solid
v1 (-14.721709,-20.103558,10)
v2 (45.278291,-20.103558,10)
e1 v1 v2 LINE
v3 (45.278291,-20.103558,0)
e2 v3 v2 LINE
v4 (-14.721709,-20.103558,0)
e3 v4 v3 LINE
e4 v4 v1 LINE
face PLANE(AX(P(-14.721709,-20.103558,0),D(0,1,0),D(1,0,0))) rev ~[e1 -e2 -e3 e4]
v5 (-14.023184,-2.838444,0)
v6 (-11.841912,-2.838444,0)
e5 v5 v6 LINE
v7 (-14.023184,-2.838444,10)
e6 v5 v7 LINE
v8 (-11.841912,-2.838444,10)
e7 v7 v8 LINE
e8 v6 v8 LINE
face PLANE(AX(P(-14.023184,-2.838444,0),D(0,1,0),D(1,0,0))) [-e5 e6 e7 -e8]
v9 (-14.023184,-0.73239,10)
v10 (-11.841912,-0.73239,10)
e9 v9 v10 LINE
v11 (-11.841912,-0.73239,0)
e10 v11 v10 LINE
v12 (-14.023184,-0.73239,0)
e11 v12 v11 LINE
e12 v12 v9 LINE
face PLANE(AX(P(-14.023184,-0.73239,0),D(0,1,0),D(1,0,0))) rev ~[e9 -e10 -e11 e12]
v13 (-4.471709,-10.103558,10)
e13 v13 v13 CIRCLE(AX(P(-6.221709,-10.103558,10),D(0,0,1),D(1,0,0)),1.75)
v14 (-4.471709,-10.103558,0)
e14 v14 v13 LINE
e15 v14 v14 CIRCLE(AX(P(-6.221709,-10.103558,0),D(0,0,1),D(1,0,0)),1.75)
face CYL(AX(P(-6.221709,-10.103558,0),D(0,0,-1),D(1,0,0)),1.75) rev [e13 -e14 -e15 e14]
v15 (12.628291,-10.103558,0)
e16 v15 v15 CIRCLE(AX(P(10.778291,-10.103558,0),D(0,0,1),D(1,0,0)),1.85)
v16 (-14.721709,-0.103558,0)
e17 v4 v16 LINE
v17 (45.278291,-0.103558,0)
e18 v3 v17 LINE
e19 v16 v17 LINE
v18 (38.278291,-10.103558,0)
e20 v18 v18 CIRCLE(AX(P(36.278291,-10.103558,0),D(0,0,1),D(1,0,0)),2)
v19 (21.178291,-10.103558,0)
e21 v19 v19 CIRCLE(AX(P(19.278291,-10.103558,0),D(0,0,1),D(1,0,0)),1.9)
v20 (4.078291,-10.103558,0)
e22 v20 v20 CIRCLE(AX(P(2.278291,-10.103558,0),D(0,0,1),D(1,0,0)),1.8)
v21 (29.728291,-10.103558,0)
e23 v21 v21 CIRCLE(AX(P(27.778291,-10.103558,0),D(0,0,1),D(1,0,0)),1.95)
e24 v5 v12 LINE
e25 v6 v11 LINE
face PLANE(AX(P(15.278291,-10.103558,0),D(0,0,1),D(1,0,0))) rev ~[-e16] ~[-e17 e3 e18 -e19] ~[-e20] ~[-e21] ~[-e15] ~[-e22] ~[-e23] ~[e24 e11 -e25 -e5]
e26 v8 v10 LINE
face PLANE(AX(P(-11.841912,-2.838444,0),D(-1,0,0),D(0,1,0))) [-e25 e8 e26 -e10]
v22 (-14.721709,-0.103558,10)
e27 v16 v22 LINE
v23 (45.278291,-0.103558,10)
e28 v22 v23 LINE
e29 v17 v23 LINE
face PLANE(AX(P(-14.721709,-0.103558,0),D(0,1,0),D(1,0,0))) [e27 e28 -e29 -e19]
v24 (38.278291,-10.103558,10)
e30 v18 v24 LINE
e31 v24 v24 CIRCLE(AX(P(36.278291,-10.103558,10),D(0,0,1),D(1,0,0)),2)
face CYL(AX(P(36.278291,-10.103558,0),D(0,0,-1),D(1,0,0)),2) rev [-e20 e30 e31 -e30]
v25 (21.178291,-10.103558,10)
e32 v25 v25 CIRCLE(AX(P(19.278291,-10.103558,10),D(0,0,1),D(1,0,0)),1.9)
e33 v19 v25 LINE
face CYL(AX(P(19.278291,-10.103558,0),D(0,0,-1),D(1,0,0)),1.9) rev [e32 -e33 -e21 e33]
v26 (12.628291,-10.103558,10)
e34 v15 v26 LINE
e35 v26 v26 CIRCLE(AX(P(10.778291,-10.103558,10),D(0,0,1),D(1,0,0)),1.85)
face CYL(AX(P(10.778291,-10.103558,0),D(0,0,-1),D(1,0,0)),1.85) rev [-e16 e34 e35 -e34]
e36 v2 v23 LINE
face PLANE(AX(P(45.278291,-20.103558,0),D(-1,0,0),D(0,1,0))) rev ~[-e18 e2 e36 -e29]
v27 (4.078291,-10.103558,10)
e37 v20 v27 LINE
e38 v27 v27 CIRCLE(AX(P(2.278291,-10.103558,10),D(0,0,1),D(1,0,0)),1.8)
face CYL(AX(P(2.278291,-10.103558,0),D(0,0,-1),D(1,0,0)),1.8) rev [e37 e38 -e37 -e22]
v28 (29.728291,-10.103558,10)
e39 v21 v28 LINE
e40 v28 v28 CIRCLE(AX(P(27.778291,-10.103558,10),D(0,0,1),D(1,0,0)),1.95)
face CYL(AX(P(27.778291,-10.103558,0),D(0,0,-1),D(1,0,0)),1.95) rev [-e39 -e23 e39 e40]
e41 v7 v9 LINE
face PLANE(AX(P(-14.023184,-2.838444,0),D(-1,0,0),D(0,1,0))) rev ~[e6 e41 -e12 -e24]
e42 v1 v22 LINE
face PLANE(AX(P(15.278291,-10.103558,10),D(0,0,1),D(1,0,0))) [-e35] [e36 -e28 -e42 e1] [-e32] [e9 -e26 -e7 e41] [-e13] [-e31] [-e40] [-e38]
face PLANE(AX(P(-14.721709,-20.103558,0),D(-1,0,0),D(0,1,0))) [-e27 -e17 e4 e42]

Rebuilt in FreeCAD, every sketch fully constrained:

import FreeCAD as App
import Part
import Sketcher
from FreeCAD import Vector
Q = App.Units.Quantity


def add_polygon(sketch, points):
    """Adds a closed chain of lines whose ends are joined by coincident constraints."""
    first, n = sketch.GeometryCount, len(points)
    for a, b in zip(points, points[1:] + points[:1]):
        sketch.addGeometry(Part.LineSegment(App.Vector(*a, 0), App.Vector(*b, 0)), False)
    for i in range(n):
        sketch.addConstraint(Sketcher.Constraint("Coincident", first + i, 2, first + (i + 1) % n, 1))

doc = App.newDocument("Part")
params = doc.addObject("Spreadsheet::Sheet", "Params")
for row, (alias, value) in enumerate([
    ("sketch1_diameter", "4 mm"),
    ("sketch1_diameter2", "3.5 mm"),
    ("sketch1_diameter3", "3.6 mm"),
    ("sketch1_diameter4", "3.7 mm"),
    ("sketch1_diameter5", "3.8 mm"),
    ("pad1_length", "10 mm"),
], start=1):
    params.set(f"A{row}", alias)
    params.set(f"B{row}", "=" + value)
    params.setAlias(f"B{row}", alias)

body = doc.addObject("PartDesign::Body", "Body")

sketch1 = body.newObject("Sketcher::SketchObject", "Sketch")
sketch1.AttachmentSupport = (doc.getObject("XY_Plane"), [""])
sketch1.MapMode = "FlatFace"
add_polygon(sketch1, [(-14.721709, -0.103558), (-14.721709, -20.103558), (45.278291, -20.103558), (45.278291, -0.103558)])
sketch1.addGeometry(Part.Circle(Vector(-6.221709, -10.103558, 0), Vector(0, 0, 1), 1.75), False)
sketch1.addGeometry(Part.Circle(Vector(2.278291, -10.103558, 0), Vector(0, 0, 1), 1.8), False)
sketch1.addGeometry(Part.Circle(Vector(10.778291, -10.103558, 0), Vector(0, 0, 1), 1.85), False)
sketch1.addGeometry(Part.Circle(Vector(19.278291, -10.103558, 0), Vector(0, 0, 1), 1.9), False)
sketch1.addGeometry(Part.Circle(Vector(27.778291, -10.103558, 0), Vector(0, 0, 1), 1.95), False)
sketch1.addGeometry(Part.Circle(Vector(36.278291, -10.103558, 0), Vector(0, 0, 1), 2), False)
add_polygon(sketch1, [(-11.841912, -2.838444), (-14.023184, -2.838444), (-14.023184, -0.73239), (-11.841912, -0.73239)])
sketch1.addConstraint([
    Sketcher.Constraint("Vertical", 0),
    Sketcher.Constraint("Horizontal", 1),
    Sketcher.Constraint("Vertical", 2),
    Sketcher.Constraint("Horizontal", 3),
    Sketcher.Constraint("Horizontal", 10),
    Sketcher.Constraint("Vertical", 11),
    Sketcher.Constraint("Horizontal", 12),
    Sketcher.Constraint("Vertical", 13),
    Sketcher.Constraint("Horizontal", 4, 3, 5, 3),
    Sketcher.Constraint("Horizontal", 5, 3, 6, 3),
    Sketcher.Constraint("Horizontal", 6, 3, 7, 3),
    Sketcher.Constraint("Horizontal", 7, 3, 8, 3),
    Sketcher.Constraint("Horizontal", 8, 3, 9, 3),
    Sketcher.Constraint("Diameter", 9, Q("4 mm")),
    Sketcher.Constraint("Diameter", 4, Q("3.5 mm")),
    Sketcher.Constraint("Diameter", 5, Q("3.6 mm")),
    Sketcher.Constraint("Diameter", 6, Q("3.7 mm")),
    Sketcher.Constraint("Diameter", 7, Q("3.8 mm")),
    Sketcher.Constraint("Diameter", 8, Q("3.9 mm")),
    Sketcher.Constraint("DistanceX", 1, 1, 1, 2, Q("60 mm")),
    Sketcher.Constraint("DistanceY", 0, 2, 0, 1, Q("20 mm")),
    Sketcher.Constraint("DistanceX", 4, 3, 6, 3, Q("17 mm")),
    Sketcher.Constraint("DistanceX", 5, 3, 7, 3, Q("17 mm")),
    Sketcher.Constraint("DistanceX", 6, 3, 8, 3, Q("17 mm")),
    Sketcher.Constraint("DistanceX", 7, 3, 9, 3, Q("17 mm")),
    Sketcher.Constraint("DistanceY", 0, 2, 4, 3, Q("10 mm")),
    Sketcher.Constraint("DistanceX", 0, 2, 5, 3, Q("17 mm")),
    Sketcher.Constraint("DistanceX", 4, 3, 5, 3, Q("8.5 mm")),
    Sketcher.Constraint("DistanceX", 10, 2, 10, 1, Q("2.181272 mm")),
    Sketcher.Constraint("DistanceY", 11, 1, 11, 2, Q("2.106054 mm")),
    Sketcher.Constraint("DistanceX", 4, 3, -1, 1, Q("6.221709 mm")),
    Sketcher.Constraint("DistanceY", 11, 2, -1, 1, Q("0.73239 mm")),
    Sketcher.Constraint("DistanceY", 11, 2, 3, 2, Q("0.628832 mm")),
    Sketcher.Constraint("DistanceX", 10, 2, -1, 1, Q("14.023184 mm")),
])
sketch1.setExpression("Constraints[21]", "Params.sketch1_diameter")
sketch1.setExpression("Constraints[22]", "Params.sketch1_diameter2")
sketch1.setExpression("Constraints[23]", "Params.sketch1_diameter3")
sketch1.setExpression("Constraints[24]", "Params.sketch1_diameter4")
sketch1.setExpression("Constraints[25]", "Params.sketch1_diameter5")
pad1 = body.newObject("PartDesign::Pad", "Pad")
pad1.Profile = sketch1
pad1.setExpression("Length", "Params.pad1_length")

doc.recompute()
